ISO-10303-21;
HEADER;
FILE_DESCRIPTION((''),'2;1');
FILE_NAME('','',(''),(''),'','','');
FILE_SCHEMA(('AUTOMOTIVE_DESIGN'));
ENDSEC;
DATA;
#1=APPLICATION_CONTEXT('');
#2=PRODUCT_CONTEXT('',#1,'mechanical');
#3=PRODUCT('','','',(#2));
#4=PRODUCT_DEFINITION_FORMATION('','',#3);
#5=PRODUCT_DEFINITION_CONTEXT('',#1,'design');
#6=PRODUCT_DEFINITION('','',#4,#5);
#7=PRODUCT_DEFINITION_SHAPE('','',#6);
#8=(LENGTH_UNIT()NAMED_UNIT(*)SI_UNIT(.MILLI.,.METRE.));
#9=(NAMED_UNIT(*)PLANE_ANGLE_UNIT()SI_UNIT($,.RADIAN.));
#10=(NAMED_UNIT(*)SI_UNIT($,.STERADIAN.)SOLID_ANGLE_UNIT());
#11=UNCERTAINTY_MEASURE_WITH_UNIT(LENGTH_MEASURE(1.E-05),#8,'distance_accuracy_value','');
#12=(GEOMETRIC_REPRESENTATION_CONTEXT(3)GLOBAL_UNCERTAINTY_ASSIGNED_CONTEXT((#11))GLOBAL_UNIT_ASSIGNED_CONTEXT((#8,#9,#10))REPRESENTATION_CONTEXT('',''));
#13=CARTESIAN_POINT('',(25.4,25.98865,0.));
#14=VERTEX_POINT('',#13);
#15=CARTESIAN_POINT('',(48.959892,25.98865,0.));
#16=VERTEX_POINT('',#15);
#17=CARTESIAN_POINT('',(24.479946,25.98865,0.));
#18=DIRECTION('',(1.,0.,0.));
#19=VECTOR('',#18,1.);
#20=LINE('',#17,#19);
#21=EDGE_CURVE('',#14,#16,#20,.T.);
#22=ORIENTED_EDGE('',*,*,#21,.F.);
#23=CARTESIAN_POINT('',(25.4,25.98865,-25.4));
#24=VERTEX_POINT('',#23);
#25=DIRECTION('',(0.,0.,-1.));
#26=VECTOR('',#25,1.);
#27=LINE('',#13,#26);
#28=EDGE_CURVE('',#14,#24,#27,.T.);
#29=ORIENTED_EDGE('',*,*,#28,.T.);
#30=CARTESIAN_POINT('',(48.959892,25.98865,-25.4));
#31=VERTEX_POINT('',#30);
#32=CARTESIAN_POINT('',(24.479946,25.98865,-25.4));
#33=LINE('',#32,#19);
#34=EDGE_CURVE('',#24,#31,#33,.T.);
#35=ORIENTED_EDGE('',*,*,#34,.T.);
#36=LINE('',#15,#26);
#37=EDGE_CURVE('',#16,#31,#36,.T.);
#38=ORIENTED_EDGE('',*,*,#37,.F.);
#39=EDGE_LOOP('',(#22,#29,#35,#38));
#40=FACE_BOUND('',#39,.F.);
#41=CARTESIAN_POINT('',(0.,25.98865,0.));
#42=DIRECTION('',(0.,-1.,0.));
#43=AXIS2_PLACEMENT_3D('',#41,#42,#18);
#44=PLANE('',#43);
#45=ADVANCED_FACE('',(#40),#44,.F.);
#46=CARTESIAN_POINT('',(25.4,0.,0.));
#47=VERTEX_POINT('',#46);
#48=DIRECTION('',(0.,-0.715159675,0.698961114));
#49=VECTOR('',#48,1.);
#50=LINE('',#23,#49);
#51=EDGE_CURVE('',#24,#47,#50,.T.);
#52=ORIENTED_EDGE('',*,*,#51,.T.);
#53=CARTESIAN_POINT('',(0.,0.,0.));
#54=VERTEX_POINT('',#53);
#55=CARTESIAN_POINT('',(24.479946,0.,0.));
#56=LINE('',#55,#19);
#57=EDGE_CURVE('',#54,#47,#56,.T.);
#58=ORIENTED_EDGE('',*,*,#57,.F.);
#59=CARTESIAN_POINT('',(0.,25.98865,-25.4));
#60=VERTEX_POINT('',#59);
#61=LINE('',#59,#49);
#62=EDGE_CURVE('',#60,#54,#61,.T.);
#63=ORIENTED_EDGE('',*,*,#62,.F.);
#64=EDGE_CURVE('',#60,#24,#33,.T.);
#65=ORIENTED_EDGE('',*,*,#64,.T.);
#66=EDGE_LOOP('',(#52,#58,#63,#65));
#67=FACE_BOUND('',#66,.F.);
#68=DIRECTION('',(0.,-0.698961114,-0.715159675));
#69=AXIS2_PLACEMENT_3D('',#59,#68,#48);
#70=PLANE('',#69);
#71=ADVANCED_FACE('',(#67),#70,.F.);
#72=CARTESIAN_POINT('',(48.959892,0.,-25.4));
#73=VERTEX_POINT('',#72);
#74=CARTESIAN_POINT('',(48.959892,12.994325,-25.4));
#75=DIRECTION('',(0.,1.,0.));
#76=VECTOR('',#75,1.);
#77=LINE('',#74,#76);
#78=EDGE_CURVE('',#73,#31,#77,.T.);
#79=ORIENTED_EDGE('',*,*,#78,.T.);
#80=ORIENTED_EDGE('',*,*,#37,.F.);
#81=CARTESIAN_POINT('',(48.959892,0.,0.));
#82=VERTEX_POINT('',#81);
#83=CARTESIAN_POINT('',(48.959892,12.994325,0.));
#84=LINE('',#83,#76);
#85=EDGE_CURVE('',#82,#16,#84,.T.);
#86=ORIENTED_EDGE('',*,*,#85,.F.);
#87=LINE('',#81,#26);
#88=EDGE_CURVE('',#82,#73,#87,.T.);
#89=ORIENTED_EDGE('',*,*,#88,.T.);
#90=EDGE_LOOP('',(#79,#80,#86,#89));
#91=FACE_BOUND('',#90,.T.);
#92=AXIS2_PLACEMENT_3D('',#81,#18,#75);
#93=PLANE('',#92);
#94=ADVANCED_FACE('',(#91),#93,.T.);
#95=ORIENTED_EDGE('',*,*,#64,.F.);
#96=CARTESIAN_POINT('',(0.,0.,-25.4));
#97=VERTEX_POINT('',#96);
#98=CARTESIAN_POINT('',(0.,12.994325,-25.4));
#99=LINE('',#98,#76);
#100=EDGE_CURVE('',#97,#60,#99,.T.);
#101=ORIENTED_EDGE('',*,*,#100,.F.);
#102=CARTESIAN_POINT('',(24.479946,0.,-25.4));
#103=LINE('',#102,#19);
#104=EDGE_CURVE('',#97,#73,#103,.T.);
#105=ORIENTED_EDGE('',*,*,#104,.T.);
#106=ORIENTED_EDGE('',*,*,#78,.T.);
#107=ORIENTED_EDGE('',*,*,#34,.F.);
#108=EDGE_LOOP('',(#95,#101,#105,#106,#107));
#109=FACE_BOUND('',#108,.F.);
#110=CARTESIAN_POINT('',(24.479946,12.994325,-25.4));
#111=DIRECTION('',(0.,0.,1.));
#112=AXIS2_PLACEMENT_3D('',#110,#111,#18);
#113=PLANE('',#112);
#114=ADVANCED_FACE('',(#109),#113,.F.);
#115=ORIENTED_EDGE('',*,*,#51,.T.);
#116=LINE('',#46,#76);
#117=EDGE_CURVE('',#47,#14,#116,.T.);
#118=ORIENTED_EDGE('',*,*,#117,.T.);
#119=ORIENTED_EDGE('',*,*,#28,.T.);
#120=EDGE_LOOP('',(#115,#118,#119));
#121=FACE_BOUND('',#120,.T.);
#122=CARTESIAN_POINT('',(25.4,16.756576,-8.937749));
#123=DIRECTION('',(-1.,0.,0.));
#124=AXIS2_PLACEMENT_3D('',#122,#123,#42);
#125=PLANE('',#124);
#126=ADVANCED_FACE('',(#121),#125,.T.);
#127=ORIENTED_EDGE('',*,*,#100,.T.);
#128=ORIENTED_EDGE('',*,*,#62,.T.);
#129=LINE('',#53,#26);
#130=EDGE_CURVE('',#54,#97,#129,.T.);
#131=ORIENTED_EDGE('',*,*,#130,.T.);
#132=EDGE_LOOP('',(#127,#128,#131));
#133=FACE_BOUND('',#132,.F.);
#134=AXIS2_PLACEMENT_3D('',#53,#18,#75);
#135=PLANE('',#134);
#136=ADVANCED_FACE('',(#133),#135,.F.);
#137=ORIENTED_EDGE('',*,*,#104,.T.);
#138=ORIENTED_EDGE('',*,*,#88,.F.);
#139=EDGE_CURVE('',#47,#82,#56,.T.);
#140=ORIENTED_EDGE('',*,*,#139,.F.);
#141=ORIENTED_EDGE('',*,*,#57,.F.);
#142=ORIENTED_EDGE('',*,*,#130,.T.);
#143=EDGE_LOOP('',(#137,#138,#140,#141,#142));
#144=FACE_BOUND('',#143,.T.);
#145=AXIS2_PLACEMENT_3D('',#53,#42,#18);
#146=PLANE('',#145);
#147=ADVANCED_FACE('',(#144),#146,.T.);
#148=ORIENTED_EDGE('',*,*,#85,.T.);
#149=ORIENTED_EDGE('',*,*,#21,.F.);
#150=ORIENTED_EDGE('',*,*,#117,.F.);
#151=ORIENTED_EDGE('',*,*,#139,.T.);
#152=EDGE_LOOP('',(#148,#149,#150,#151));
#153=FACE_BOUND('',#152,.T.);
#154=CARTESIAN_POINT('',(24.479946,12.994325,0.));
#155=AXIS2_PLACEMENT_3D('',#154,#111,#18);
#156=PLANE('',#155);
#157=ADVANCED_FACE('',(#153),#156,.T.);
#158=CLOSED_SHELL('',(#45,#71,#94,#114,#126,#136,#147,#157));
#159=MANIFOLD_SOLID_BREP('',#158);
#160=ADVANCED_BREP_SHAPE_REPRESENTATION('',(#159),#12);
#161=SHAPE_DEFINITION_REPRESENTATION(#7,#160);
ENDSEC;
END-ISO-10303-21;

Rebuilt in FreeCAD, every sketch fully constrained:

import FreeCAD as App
import Part
import Sketcher
from FreeCAD import Vector
Q = App.Units.Quantity

doc = App.newDocument("Part")
body = doc.addObject("PartDesign::Body", "Body")

# Sketch on XY plane
sketch1 = body.newObject("Sketcher::SketchObject", "Sketch")
sketch1.AttachmentSupport = (doc.getObject("XY_Plane"), [""])
sketch1.MapMode = "FlatFace"
sketch1.addGeometry([
    Part.LineSegment(Vector(0, 26, 0), Vector(0, 0, 0)),
    Part.LineSegment(Vector(0, 0, 0), Vector(49, 0, 0)),
    Part.LineSegment(Vector(49, 0, 0), Vector(49, 26, 0)),
    Part.LineSegment(Vector(49, 26, 0), Vector(0, 26, 0)),
], False)
sketch1.addConstraint([
    Sketcher.Constraint("Coincident", 0, 2, 1, 1),
    Sketcher.Constraint("Coincident", 1, 2, 2, 1),
    Sketcher.Constraint("Coincident", 2, 2, 3, 1),
    Sketcher.Constraint("Coincident", 3, 2, 0, 1),
    Sketcher.Constraint("Vertical", 0),
    Sketcher.Constraint("Horizontal", 1),
    Sketcher.Constraint("Vertical", 2),
    Sketcher.Constraint("Horizontal", 3),
    Sketcher.Constraint("Coincident", 0, 2, -1, 1),
    Sketcher.Constraint("DistanceY", 0, 2, 0, 1, 25.98865),
    Sketcher.Constraint("DistanceX", 1, 1, 1, 2, 48.959892),
])
pad1 = body.newObject("PartDesign::Pad", "Pad")
pad1.Profile = sketch1
pad1.Length = Q("1 in")
pad1.Reversed = True

# Sketch on YZ plane
sketch2 = body.newObject("Sketcher::SketchObject", "Sketch001")
sketch2.AttachmentSupport = (doc.getObject("YZ_Plane"), [""])
sketch2.MapMode = "FlatFace"
sketch2.addGeometry([
    Part.LineSegment(Vector(26, -25, 0), Vector(0, 0, 0)),
    Part.LineSegment(Vector(0, 0, 0), Vector(26, 0, 0)),
    Part.LineSegment(Vector(26, 0, 0), Vector(26, -25, 0)),
], False)
sketch2.addConstraint([
    Sketcher.Constraint("Coincident", 0, 2, 1, 1),
    Sketcher.Constraint("Coincident", 1, 2, 2, 1),
    Sketcher.Constraint("Coincident", 2, 2, 0, 1),
    Sketcher.Constraint("Horizontal", 1),
    Sketcher.Constraint("Vertical", 2),
    Sketcher.Constraint("Coincident", 0, 2, -1, 1),
    Sketcher.Constraint("DistanceY", 2, 2, 2, 1, Q("1 in")),
    Sketcher.Constraint("DistanceX", 1, 1, 1, 2, 25.98865),
])
pocket1 = body.newObject("PartDesign::Pocket", "Pocket")
pocket1.Profile = sketch2
pocket1.Length = Q("1 in")
pocket1.Reversed = True

doc.recompute()
